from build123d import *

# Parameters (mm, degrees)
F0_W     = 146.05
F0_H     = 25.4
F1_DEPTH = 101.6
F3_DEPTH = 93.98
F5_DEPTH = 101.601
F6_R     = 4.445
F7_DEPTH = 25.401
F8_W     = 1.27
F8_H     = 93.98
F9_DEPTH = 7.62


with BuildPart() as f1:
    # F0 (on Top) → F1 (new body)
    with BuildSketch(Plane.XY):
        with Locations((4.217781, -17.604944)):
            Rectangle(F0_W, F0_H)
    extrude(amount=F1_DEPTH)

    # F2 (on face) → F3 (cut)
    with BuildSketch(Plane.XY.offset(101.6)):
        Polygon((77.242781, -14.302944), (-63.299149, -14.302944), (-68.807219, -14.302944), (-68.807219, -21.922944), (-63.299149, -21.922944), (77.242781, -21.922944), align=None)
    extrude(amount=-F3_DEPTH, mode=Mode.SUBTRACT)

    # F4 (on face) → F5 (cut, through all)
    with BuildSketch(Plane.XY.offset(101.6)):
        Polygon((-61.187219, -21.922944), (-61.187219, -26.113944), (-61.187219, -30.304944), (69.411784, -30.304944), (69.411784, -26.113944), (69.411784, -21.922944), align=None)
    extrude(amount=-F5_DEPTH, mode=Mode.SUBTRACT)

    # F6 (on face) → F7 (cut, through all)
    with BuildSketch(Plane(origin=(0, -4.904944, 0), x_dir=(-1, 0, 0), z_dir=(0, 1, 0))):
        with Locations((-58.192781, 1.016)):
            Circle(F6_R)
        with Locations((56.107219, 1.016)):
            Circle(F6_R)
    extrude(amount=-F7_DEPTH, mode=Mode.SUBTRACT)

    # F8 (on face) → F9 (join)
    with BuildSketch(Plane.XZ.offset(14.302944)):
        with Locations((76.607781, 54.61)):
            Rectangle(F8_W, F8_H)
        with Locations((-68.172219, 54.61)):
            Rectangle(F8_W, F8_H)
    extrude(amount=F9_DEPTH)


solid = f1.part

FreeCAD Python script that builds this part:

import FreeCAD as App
import Part
import Sketcher
Q = App.Units.Quantity

doc = App.newDocument("Part")
body = doc.addObject("PartDesign::Body", "Body")

sketch1 = doc.addObject("Sketcher::SketchObject", "Sketch")
body.addObject(sketch1)
sketch1.AttachmentSupport = (doc.XY_Plane, [""])
sketch1.MapMode = "FlatFace"
sketch1.addGeometry([
    Part.LineSegment(App.Vector(-68.807219, -4.904944, 0), App.Vector(-68.807219, -30.304944, 0)),
    Part.LineSegment(App.Vector(-68.807219, -30.304944, 0), App.Vector(77.242781, -30.304944, 0)),
    Part.LineSegment(App.Vector(77.242781, -30.304944, 0), App.Vector(77.242781, -4.904944, 0)),
    Part.LineSegment(App.Vector(77.242781, -4.904944, 0), App.Vector(-68.807219, -4.904944, 0)),
], False)
sketch1.addConstraint([
    Sketcher.Constraint("Coincident", 0, 2, 1, 1),
    Sketcher.Constraint("Coincident", 1, 2, 2, 1),
    Sketcher.Constraint("Coincident", 2, 2, 3, 1),
    Sketcher.Constraint("Coincident", 3, 2, 0, 1),
    Sketcher.Constraint("Vertical", 0),
    Sketcher.Constraint("Horizontal", 1),
    Sketcher.Constraint("Vertical", 2),
    Sketcher.Constraint("Horizontal", 3),
    Sketcher.Constraint("DistanceY", 0, 2, 0, 1, Q("1 in")),
    Sketcher.Constraint("DistanceX", 1, 1, 1, 2, Q("5.75 in")),
    Sketcher.Constraint("DistanceX", 0, 2, -1, 1, Q("68.807219 mm")),
    Sketcher.Constraint("DistanceY", 0, 2, -1, 1, Q("30.304944 mm")),
])
pad1 = doc.addObject("PartDesign::Pad", "Pad")
body.addObject(pad1)
pad1.Profile = sketch1
pad1.Length = Q("4 in")

sketch2 = doc.addObject("Sketcher::SketchObject", "Sketch001")
body.addObject(sketch2)
sketch2.AttachmentSupport = (doc.XY_Plane, [""])
sketch2.MapMode = "FlatFace"
sketch2.AttachmentOffset = App.Placement(App.Vector(0, 0, 4 * 25.4), App.Rotation())
sketch2.addGeometry([
    Part.LineSegment(App.Vector(77.242781, -14.302944, 0), App.Vector(-68.807219, -14.302944, 0)),
    Part.LineSegment(App.Vector(-68.807219, -14.302944, 0), App.Vector(-68.807219, -21.922944, 0)),
    Part.LineSegment(App.Vector(-68.807219, -21.922944, 0), App.Vector(77.242781, -21.922944, 0)),
    Part.LineSegment(App.Vector(77.242781, -21.922944, 0), App.Vector(77.242781, -14.302944, 0)),
], False)
sketch2.addConstraint([
    Sketcher.Constraint("Coincident", 0, 2, 1, 1),
    Sketcher.Constraint("Coincident", 1, 2, 2, 1),
    Sketcher.Constraint("Coincident", 2, 2, 3, 1),
    Sketcher.Constraint("Coincident", 3, 2, 0, 1),
    Sketcher.Constraint("Horizontal", 0),
    Sketcher.Constraint("Vertical", 1),
    Sketcher.Constraint("Horizontal", 2),
    Sketcher.Constraint("Vertical", 3),
    Sketcher.Constraint("DistanceY", 1, 2, 1, 1, Q("0.3 in")),
    Sketcher.Constraint("DistanceX", 0, 2, 0, 1, Q("5.75 in")),
    Sketcher.Constraint("DistanceX", 0, 2, -1, 1, Q("68.807219 mm")),
    Sketcher.Constraint("DistanceY", 0, 2, -1, 1, Q("14.302944 mm")),
])
pocket1 = doc.addObject("PartDesign::Pocket", "Pocket")
body.addObject(pocket1)
pocket1.Profile = sketch2
pocket1.Length = Q("3.7 in")

sketch3 = doc.addObject("Sketcher::SketchObject", "Sketch002")
body.addObject(sketch3)
sketch3.AttachmentSupport = (doc.XY_Plane, [""])
sketch3.MapMode = "FlatFace"
sketch3.AttachmentOffset = App.Placement(App.Vector(0, 0, 4 * 25.4), App.Rotation())
sketch3.addGeometry([
    Part.LineSegment(App.Vector(-61.187219, -21.922944, 0), App.Vector(-61.187219, -30.304944, 0)),
    Part.LineSegment(App.Vector(-61.187219, -30.304944, 0), App.Vector(69.411784, -30.304944, 0)),
    Part.LineSegment(App.Vector(69.411784, -30.304944, 0), App.Vector(69.411784, -21.922944, 0)),
    Part.LineSegment(App.Vector(69.411784, -21.922944, 0), App.Vector(-61.187219, -21.922944, 0)),
], False)
sketch3.addConstraint([
    Sketcher.Constraint("Coincident", 0, 2, 1, 1),
    Sketcher.Constraint("Coincident", 1, 2, 2, 1),
    Sketcher.Constraint("Coincident", 2, 2, 3, 1),
    Sketcher.Constraint("Coincident", 3, 2, 0, 1),
    Sketcher.Constraint("Vertical", 0),
    Sketcher.Constraint("Horizontal", 1),
    Sketcher.Constraint("Vertical", 2),
    Sketcher.Constraint("Horizontal", 3),
    Sketcher.Constraint("DistanceY", 0, 2, 0, 1, Q("0.33 in")),
    Sketcher.Constraint("DistanceX", 1, 1, 1, 2, Q("130.599003 mm")),
    Sketcher.Constraint("DistanceX", 0, 2, -1, 1, Q("61.187219 mm")),
    Sketcher.Constraint("DistanceY", 0, 2, -1, 1, Q("30.304944 mm")),
])
pocket2 = doc.addObject("PartDesign::Pocket", "Pocket001")
body.addObject(pocket2)
pocket2.Profile = sketch3
pocket2.Type = "ThroughAll"

sketch4 = doc.addObject("Sketcher::SketchObject", "Sketch003")
body.addObject(sketch4)
sketch4.AttachmentSupport = (doc.XZ_Plane, [""])
sketch4.MapMode = "FlatFace"
sketch4.AttachmentOffset = App.Placement(App.Vector(0, 0, 4.904944), App.Rotation())
sketch4.addGeometry([
    Part.Circle(App.Vector(58.192781, 1.016, 0), App.Vector(0, 0, 1), 4.445),
    Part.Circle(App.Vector(-56.107219, 1.016, 0), App.Vector(0, 0, 1), 4.445),
], False)
sketch4.addConstraint([
    Sketcher.Constraint("Equal", 0, 1),
    Sketcher.Constraint("Horizontal", 0, 3, 1, 3),
    Sketcher.Constraint("Diameter", 0, Q("0.35 in")),
    Sketcher.Constraint("DistanceX", 1, 3, 0, 3, Q("4.5 in")),
    Sketcher.Constraint("DistanceY", -1, 1, 0, 3, Q("0.04 in")),
    Sketcher.Constraint("DistanceX", -1, 1, 0, 3, Q("58.192781 mm")),
])
pocket3 = doc.addObject("PartDesign::Pocket", "Pocket002")
body.addObject(pocket3)
pocket3.Profile = sketch4
pocket3.Type = "ThroughAll"
pocket3.Reversed = True

sketch5 = doc.addObject("Sketcher::SketchObject", "Sketch004")
body.addObject(sketch5)
sketch5.AttachmentSupport = (doc.XZ_Plane, [""])
sketch5.MapMode = "FlatFace"
sketch5.AttachmentOffset = App.Placement(App.Vector(0, 0, 14.302944), App.Rotation())
sketch5.addGeometry([
    Part.LineSegment(App.Vector(75.972781, 101.6, 0), App.Vector(75.972781, 7.62, 0)),
    Part.LineSegment(App.Vector(75.972781, 7.62, 0), App.Vector(77.242781, 7.62, 0)),
    Part.LineSegment(App.Vector(77.242781, 7.62, 0), App.Vector(77.242781, 101.6, 0)),
    Part.LineSegment(App.Vector(77.242781, 101.6, 0), App.Vector(75.972781, 101.6, 0)),
    Part.LineSegment(App.Vector(-68.807219, 101.6, 0), App.Vector(-68.807219, 7.62, 0)),
    Part.LineSegment(App.Vector(-68.807219, 7.62, 0), App.Vector(-67.537219, 7.62, 0)),
    Part.LineSegment(App.Vector(-67.537219, 7.62, 0), App.Vector(-67.537219, 101.6, 0)),
    Part.LineSegment(App.Vector(-67.537219, 101.6, 0), App.Vector(-68.807219, 101.6, 0)),
], False)
sketch5.addConstraint([
    Sketcher.Constraint("Coincident", 0, 2, 1, 1),
    Sketcher.Constraint("Coincident", 1, 2, 2, 1),
    Sketcher.Constraint("Coincident", 2, 2, 3, 1),
    Sketcher.Constraint("Coincident", 3, 2, 0, 1),
    Sketcher.Constraint("Coincident", 4, 2, 5, 1),
    Sketcher.Constraint("Coincident", 5, 2, 6, 1),
    Sketcher.Constraint("Coincident", 6, 2, 7, 1),
    Sketcher.Constraint("Coincident", 7, 2, 4, 1),
    Sketcher.Constraint("Vertical", 0),
    Sketcher.Constraint("Horizontal", 1),
    Sketcher.Constraint("Vertical", 2),
    Sketcher.Constraint("Horizontal", 3),
    Sketcher.Constraint("Vertical", 4),
    Sketcher.Constraint("Horizontal", 5),
    Sketcher.Constraint("Vertical", 6),
    Sketcher.Constraint("Horizontal", 7),
    Sketcher.Constraint("Horizontal", 1, 2, 4, 2),
    Sketcher.Constraint("Horizontal", 3, 2, 6, 2),
    Sketcher.Constraint("Equal", 3, 5),
    Sketcher.Constraint("DistanceY", 0, 2, 0, 1, Q("3.7 in")),
    Sketcher.Constraint("DistanceY", -1, 1, 2, 2, Q("4 in")),
    Sketcher.Constraint("DistanceX", 1, 1, 1, 2, Q("0.05 in")),
    Sketcher.Constraint("DistanceX", 4, 2, 0, 2, Q("5.7 in")),
    Sketcher.Constraint("DistanceX", -1, 1, 0, 2, Q("75.972781 mm")),
])
pad2 = doc.addObject("PartDesign::Pad", "Pad001")
body.addObject(pad2)
pad2.Profile = sketch5
pad2.Length = Q("0.3 in")

doc.recompute()
